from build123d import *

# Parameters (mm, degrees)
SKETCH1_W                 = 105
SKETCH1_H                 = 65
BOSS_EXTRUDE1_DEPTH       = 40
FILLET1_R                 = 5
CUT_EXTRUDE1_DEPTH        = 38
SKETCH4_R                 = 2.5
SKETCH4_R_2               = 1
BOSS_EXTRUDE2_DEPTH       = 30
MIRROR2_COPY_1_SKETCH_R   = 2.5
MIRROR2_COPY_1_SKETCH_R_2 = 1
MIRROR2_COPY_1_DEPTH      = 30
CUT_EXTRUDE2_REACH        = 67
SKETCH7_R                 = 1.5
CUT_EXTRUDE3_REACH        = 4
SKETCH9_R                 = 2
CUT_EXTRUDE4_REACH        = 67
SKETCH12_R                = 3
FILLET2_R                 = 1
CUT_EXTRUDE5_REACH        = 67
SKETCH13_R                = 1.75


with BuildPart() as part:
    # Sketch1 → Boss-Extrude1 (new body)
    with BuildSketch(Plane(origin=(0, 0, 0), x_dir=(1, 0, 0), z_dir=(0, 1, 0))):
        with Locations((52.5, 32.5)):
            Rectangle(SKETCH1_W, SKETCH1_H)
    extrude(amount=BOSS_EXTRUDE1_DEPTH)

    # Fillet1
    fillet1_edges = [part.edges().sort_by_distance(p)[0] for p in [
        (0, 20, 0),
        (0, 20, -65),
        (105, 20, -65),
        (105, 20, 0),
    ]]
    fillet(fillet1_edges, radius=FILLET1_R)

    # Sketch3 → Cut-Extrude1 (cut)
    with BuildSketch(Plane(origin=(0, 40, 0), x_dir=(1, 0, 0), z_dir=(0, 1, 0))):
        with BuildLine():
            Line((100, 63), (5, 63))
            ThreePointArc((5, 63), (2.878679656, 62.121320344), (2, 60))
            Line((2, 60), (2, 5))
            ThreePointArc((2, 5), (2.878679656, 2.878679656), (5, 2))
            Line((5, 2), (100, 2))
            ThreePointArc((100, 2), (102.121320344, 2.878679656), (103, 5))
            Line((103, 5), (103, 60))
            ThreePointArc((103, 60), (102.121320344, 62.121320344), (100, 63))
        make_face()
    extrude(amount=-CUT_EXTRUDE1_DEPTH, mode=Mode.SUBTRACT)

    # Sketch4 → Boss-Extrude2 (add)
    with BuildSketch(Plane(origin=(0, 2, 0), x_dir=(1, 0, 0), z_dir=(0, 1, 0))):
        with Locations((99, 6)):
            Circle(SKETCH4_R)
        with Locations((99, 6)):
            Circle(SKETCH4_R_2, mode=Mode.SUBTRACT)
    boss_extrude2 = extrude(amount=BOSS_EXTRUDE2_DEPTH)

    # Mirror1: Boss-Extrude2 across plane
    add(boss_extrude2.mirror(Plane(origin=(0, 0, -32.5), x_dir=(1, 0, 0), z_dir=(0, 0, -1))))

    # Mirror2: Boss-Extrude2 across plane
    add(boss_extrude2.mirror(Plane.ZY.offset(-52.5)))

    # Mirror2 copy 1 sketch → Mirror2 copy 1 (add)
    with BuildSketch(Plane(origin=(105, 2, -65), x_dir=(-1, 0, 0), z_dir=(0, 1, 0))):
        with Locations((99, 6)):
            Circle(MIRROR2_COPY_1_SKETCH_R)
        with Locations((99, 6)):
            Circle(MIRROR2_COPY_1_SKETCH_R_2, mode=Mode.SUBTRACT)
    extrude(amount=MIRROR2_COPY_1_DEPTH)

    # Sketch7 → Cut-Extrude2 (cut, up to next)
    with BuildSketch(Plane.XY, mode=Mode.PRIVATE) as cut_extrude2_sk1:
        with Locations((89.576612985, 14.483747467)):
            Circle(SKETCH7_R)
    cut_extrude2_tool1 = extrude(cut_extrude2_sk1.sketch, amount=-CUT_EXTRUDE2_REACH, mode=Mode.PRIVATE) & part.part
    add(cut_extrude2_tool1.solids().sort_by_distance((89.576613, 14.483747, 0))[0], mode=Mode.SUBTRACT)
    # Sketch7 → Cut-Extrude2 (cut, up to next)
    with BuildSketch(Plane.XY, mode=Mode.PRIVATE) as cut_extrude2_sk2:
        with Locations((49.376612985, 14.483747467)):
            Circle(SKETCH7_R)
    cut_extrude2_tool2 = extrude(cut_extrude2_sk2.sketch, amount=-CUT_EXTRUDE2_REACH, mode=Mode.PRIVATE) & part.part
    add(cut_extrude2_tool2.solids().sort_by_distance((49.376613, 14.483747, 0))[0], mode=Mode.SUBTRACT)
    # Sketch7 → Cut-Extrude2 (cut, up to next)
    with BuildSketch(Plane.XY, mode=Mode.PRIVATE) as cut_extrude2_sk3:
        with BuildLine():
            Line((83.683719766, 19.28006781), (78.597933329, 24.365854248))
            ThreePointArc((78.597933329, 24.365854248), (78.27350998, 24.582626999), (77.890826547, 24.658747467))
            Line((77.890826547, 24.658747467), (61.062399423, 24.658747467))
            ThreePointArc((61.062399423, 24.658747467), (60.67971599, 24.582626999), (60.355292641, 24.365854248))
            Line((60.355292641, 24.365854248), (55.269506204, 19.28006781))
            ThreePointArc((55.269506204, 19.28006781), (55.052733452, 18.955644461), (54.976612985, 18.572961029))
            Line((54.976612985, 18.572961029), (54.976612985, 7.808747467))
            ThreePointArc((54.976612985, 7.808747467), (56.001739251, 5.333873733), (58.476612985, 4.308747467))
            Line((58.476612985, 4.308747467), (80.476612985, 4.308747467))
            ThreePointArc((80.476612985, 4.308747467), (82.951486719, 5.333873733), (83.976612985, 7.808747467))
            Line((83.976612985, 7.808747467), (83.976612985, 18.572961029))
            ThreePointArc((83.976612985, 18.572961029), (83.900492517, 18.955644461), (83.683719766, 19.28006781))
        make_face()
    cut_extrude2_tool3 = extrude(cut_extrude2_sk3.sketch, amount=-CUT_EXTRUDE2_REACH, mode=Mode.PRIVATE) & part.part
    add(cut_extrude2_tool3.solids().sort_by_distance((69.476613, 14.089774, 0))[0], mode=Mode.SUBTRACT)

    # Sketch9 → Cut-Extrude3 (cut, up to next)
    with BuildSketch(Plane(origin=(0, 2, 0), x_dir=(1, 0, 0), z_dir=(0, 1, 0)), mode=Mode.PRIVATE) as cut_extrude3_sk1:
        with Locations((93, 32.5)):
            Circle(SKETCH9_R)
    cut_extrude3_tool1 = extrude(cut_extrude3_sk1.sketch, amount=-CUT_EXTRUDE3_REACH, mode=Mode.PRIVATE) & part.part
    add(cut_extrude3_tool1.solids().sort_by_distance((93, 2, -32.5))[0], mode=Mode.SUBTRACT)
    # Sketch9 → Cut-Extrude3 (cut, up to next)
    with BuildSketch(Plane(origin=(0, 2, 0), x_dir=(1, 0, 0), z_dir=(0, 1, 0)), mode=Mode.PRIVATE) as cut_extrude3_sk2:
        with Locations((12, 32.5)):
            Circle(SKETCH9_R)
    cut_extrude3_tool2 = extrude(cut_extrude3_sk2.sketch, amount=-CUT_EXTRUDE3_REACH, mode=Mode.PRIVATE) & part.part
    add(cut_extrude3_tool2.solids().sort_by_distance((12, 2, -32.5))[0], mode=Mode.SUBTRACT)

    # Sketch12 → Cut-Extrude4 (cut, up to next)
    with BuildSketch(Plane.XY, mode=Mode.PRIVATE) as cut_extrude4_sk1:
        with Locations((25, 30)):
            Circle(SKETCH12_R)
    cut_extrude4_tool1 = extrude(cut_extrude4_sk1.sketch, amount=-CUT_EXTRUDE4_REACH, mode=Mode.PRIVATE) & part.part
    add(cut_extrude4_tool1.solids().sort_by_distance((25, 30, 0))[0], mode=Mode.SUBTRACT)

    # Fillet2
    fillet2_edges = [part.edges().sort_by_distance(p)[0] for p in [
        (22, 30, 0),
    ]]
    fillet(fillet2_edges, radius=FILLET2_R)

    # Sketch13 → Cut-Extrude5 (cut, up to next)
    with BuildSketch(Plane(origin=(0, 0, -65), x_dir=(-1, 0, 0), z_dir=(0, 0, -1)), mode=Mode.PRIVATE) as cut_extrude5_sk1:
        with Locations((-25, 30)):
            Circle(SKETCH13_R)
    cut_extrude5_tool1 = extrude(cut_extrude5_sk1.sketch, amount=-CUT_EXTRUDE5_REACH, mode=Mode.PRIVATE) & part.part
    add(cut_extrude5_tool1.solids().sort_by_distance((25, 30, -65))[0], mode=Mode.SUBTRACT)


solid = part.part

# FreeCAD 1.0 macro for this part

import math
import FreeCAD as App
import Part
import Sketcher
from FreeCAD import Vector
Q = App.Units.Quantity


def edges_at(feature, points):
    """Names of the edges that pass closest to the given points."""
    edges = feature.Shape.Edges
    near = lambda p: min(range(len(edges)), key=lambda i: edges[i].distToShape(Part.Vertex(*p))[0])
    return sorted({f"Edge{near(p) + 1}" for p in points})


def add_polygon(sketch, points):
    """Adds a closed chain of lines whose ends are joined by coincident constraints."""
    first, n = sketch.GeometryCount, len(points)
    for a, b in zip(points, points[1:] + points[:1]):
        sketch.addGeometry(Part.LineSegment(App.Vector(*a, 0), App.Vector(*b, 0)), False)
    for i in range(n):
        sketch.addConstraint(Sketcher.Constraint("Coincident", first + i, 2, first + (i + 1) % n, 1))

doc = App.newDocument("Part")
body = doc.addObject("PartDesign::Body", "Body")

# Sketch on XZ plane
sketch1 = body.newObject("Sketcher::SketchObject", "Sketch")
sketch1.AttachmentSupport = (doc.getObject("XZ_Plane"), [""])
sketch1.MapMode = "FlatFace"
add_polygon(sketch1, [(0, -65), (0, 0), (105, 0), (105, -65)])  # lines 0-3
sketch1.addConstraint([
    Sketcher.Constraint("Vertical", 0),
    Sketcher.Constraint("Horizontal", 1),
    Sketcher.Constraint("Vertical", 2),
    Sketcher.Constraint("Horizontal", 3),
    Sketcher.Constraint("Coincident", 0, 2, -1, 1),
    Sketcher.Constraint("DistanceX", 1, 1, 1, 2, Q("105 mm")),
    Sketcher.Constraint("DistanceY", 0, 1, 0, 2, Q("65 mm")),
])
pad1 = body.newObject("PartDesign::Pad", "Pad")
pad1.Profile = sketch1
pad1.Length = 40
pad1.Reversed = True
doc.recompute()

fillet = body.newObject("PartDesign::Fillet", "Fillet")
fillet.Base = (pad1, edges_at(pad1, [
    (0, 20, 0),
    (0, 20, -65),
    (105, 20, -65),
    (105, 20, 0),
]))
fillet.Radius = 5

# Sketch on XZ plane
sketch2 = body.newObject("Sketcher::SketchObject", "Sketch001")
sketch2.AttachmentSupport = (doc.getObject("XZ_Plane"), [""])
sketch2.MapMode = "FlatFace"
sketch2.AttachmentOffset = App.Placement(Vector(0, 0, -40), App.Rotation())
sketch2.addGeometry([
    Part.LineSegment(Vector(100, -63, 0), Vector(5, -63, 0)),  # 0
    Part.ArcOfCircle(Part.Circle(Vector(5, -60, 0), Vector(0, 0, 1), 3), math.radians(180), math.radians(270)),  # 1
    Part.LineSegment(Vector(2, -60, 0), Vector(2, -5, 0)),  # 2
    Part.ArcOfCircle(Part.Circle(Vector(5, -5, 0), Vector(0, 0, 1), 3), math.radians(90), math.radians(180)),  # 3
    Part.LineSegment(Vector(5, -2, 0), Vector(100, -2, 0)),  # 4
    Part.ArcOfCircle(Part.Circle(Vector(100, -5, 0), Vector(0, 0, 1), 3), math.radians(0), math.radians(90)),  # 5
    Part.LineSegment(Vector(103, -5, 0), Vector(103, -60, 0)),  # 6
    Part.ArcOfCircle(Part.Circle(Vector(100, -60, 0), Vector(0, 0, 1), 3), math.radians(-90), math.radians(0)),  # 7
], False)
sketch2.addConstraint([
    Sketcher.Constraint("Tangent", 0, 2, 1, 2),
    Sketcher.Constraint("Tangent", 1, 1, 2, 1),
    Sketcher.Constraint("Tangent", 2, 2, 3, 2),
    Sketcher.Constraint("Tangent", 3, 1, 4, 1),
    Sketcher.Constraint("Tangent", 4, 2, 5, 2),
    Sketcher.Constraint("Tangent", 5, 1, 6, 1),
    Sketcher.Constraint("Tangent", 6, 2, 7, 2),
    Sketcher.Constraint("Tangent", 7, 1, 0, 1),
    Sketcher.Constraint("Horizontal", 0),
    Sketcher.Constraint("Vertical", 2),
    Sketcher.Constraint("Horizontal", 4),
    Sketcher.Constraint("Vertical", 6),
    Sketcher.Constraint("Equal", 1, 3),
    Sketcher.Constraint("Equal", 3, 5),
    Sketcher.Constraint("Equal", 5, 7),
    Sketcher.Constraint("Radius", 1, Q("3 mm")),
    Sketcher.Constraint("DistanceX", 0, 2, 0, 1, Q("95 mm")),
    Sketcher.Constraint("DistanceY", 2, 1, 2, 2, Q("55 mm")),
    Sketcher.Constraint("DistanceX", -1, 1, 1, 3, Q("5 mm")),
    Sketcher.Constraint("DistanceY", 1, 3, -1, 1, Q("60 mm")),
])
pocket1 = body.newObject("PartDesign::Pocket", "Pocket")
pocket1.Profile = sketch2
pocket1.Length = 38
pocket1.Reversed = True

# Sketch on XZ plane
sketch3 = body.newObject("Sketcher::SketchObject", "Sketch002")
sketch3.AttachmentSupport = (doc.getObject("XZ_Plane"), [""])
sketch3.MapMode = "FlatFace"
sketch3.AttachmentOffset = App.Placement(Vector(0, 0, -2), App.Rotation())
sketch3.addGeometry([
    Part.Circle(Vector(99, -6, 0), Vector(0, 0, 1), 2.5),
    Part.Circle(Vector(99, -6, 0), Vector(0, 0, 1), 1),
], False)
sketch3.addConstraint([
    Sketcher.Constraint("Coincident", 1, 3, 0, 3),
    Sketcher.Constraint("Diameter", 0, Q("5 mm")),
    Sketcher.Constraint("Diameter", 1, Q("2 mm")),
    Sketcher.Constraint("DistanceX", -1, 1, 0, 3, Q("99 mm")),
    Sketcher.Constraint("DistanceY", 0, 3, -1, 1, Q("6 mm")),
])
pad2 = body.newObject("PartDesign::Pad", "Pad001")
pad2.Profile = sketch3
pad2.Length = 30
pad2.Reversed = True
doc.recompute()

datumplane = body.newObject("PartDesign::Plane", "DatumPlane")
datumplane.AttachmentSupport = (doc.getObject("XY_Plane"), [""])
datumplane.MapMode = "FlatFace"
datumplane.AttachmentOffset = App.Placement(Vector(0, 0, -32.5), App.Rotation())
mirrored = body.newObject("PartDesign::Mirrored", "Mirrored")
mirrored.Originals = [pad2]
mirrored.MirrorPlane = (datumplane, [""])
body.Tip = mirrored
doc.recompute()

datumplane2 = body.newObject("PartDesign::Plane", "DatumPlane001")
datumplane2.AttachmentSupport = (doc.getObject("YZ_Plane"), [""])
datumplane2.MapMode = "FlatFace"
datumplane2.AttachmentOffset = App.Placement(Vector(0, 0, 52.5), App.Rotation())
mirrored2 = body.newObject("PartDesign::Mirrored", "Mirrored001")
mirrored2.Originals = [pad2]
mirrored2.MirrorPlane = (datumplane2, [""])
body.Tip = mirrored2

# Sketch on XZ plane
sketch4 = body.newObject("Sketcher::SketchObject", "Sketch003")
sketch4.AttachmentSupport = (doc.getObject("XZ_Plane"), [""])
sketch4.MapMode = "FlatFace"
sketch4.AttachmentOffset = App.Placement(Vector(0, 0, -2), App.Rotation())
sketch4.addGeometry([
    Part.Circle(Vector(6, -59, 0), Vector(0, 0, 1), 2.5),
    Part.Circle(Vector(6, -59, 0), Vector(0, 0, 1), 1),
], False)
sketch4.addConstraint([
    Sketcher.Constraint("Coincident", 1, 3, 0, 3),
    Sketcher.Constraint("Diameter", 0, Q("5 mm")),
    Sketcher.Constraint("Diameter", 1, Q("2 mm")),
    Sketcher.Constraint("DistanceX", -1, 1, 0, 3, Q("6 mm")),
    Sketcher.Constraint("DistanceY", 0, 3, -1, 1, Q("59 mm")),
])
pad3 = body.newObject("PartDesign::Pad", "Pad002")
pad3.Profile = sketch4
pad3.Length = 30
pad3.Reversed = True

# Sketch on XY plane
sketch5 = body.newObject("Sketcher::SketchObject", "Sketch004")
sketch5.AttachmentSupport = (doc.getObject("XY_Plane"), [""])
sketch5.MapMode = "FlatFace"
sketch5.addGeometry(Part.Circle(Vector(89.576613, 14.483747, 0), Vector(0, 0, 1), 1.5), False)
sketch5.addConstraint([
    Sketcher.Constraint("Diameter", 0, Q("3 mm")),
    Sketcher.Constraint("DistanceX", -1, 1, 0, 3, Q("89.576613 mm")),
    Sketcher.Constraint("DistanceY", -1, 1, 0, 3, Q("14.483747 mm")),
])
pocket2 = body.newObject("PartDesign::Pocket", "Pocket001")
pocket2.Profile = sketch5
pocket2.Type = "UpToFirst"

# Sketch on XY plane
sketch6 = body.newObject("Sketcher::SketchObject", "Sketch005")
sketch6.AttachmentSupport = (doc.getObject("XY_Plane"), [""])
sketch6.MapMode = "FlatFace"
sketch6.addGeometry(Part.Circle(Vector(49.376613, 14.483747, 0), Vector(0, 0, 1), 1.5), False)
sketch6.addConstraint([
    Sketcher.Constraint("Diameter", 0, Q("3 mm")),
    Sketcher.Constraint("DistanceX", -1, 1, 0, 3, Q("49.376613 mm")),
    Sketcher.Constraint("DistanceY", -1, 1, 0, 3, Q("14.483747 mm")),
])
pocket3 = body.newObject("PartDesign::Pocket", "Pocket002")
pocket3.Profile = sketch6
pocket3.Type = "UpToFirst"

# Sketch on XY plane
sketch7 = body.newObject("Sketcher::SketchObject", "Sketch006")
sketch7.AttachmentSupport = (doc.getObject("XY_Plane"), [""])
sketch7.MapMode = "FlatFace"
sketch7.addGeometry([
    Part.LineSegment(Vector(83.68372, 19.280068, 0), Vector(78.597933, 24.365854, 0)),  # 0
    Part.ArcOfCircle(Part.Circle(Vector(77.890827, 23.658747, 0), Vector(0, 0, 1), 1), math.radians(45), math.radians(90)),  # 1
    Part.LineSegment(Vector(77.890827, 24.658747, 0), Vector(61.062399, 24.658747, 0)),  # 2
    Part.ArcOfCircle(Part.Circle(Vector(61.062399, 23.658747, 0), Vector(0, 0, 1), 1), math.radians(90), math.radians(135)),  # 3
    Part.LineSegment(Vector(60.355293, 24.365854, 0), Vector(55.269506, 19.280068, 0)),  # 4
    Part.ArcOfCircle(Part.Circle(Vector(55.976613, 18.572961, 0), Vector(0, 0, 1), 1), math.radians(135), math.radians(180)),  # 5
    Part.LineSegment(Vector(54.976613, 18.572961, 0), Vector(54.976613, 7.808747, 0)),  # 6
    Part.ArcOfCircle(Part.Circle(Vector(58.476613, 7.808747, 0), Vector(0, 0, 1), 3.5), math.radians(-180), math.radians(-90)),  # 7
    Part.LineSegment(Vector(58.476613, 4.308747, 0), Vector(80.476613, 4.308747, 0)),  # 8
    Part.ArcOfCircle(Part.Circle(Vector(80.476613, 7.808747, 0), Vector(0, 0, 1), 3.5), math.radians(-90), math.radians(0)),  # 9
    Part.LineSegment(Vector(83.976613, 7.808747, 0), Vector(83.976613, 18.572961, 0)),  # 10
    Part.ArcOfCircle(Part.Circle(Vector(82.976613, 18.572961, 0), Vector(0, 0, 1), 1), math.radians(0), math.radians(45)),  # 11
], False)
sketch7.addConstraint([
    Sketcher.Constraint("Tangent", 0, 2, 1, 1),
    Sketcher.Constraint("Tangent", 1, 2, 2, 1),
    Sketcher.Constraint("Tangent", 2, 2, 3, 1),
    Sketcher.Constraint("Tangent", 3, 2, 4, 1),
    Sketcher.Constraint("Tangent", 4, 2, 5, 1),
    Sketcher.Constraint("Tangent", 5, 2, 6, 1),
    Sketcher.Constraint("Tangent", 6, 2, 7, 1),
    Sketcher.Constraint("Tangent", 7, 2, 8, 1),
    Sketcher.Constraint("Tangent", 8, 2, 9, 1),
    Sketcher.Constraint("Tangent", 9, 2, 10, 1),
    Sketcher.Constraint("Tangent", 10, 2, 11, 1),
    Sketcher.Constraint("Tangent", 11, 2, 0, 1),
    Sketcher.Constraint("Horizontal", 2),
    Sketcher.Constraint("Vertical", 6),
    Sketcher.Constraint("Horizontal", 8),
    Sketcher.Constraint("Vertical", 10),
    Sketcher.Constraint("Equal", 1, 3),
    Sketcher.Constraint("Equal", 3, 5),
    Sketcher.Constraint("Equal", 7, 9),
    Sketcher.Constraint("Equal", 5, 11),
    Sketcher.Constraint("Perpendicular", 0, 4),
    Sketcher.Constraint("Horizontal", 5, 3, 11, 3),
    Sketcher.Constraint("Horizontal", 0, 2, 3, 2),
    Sketcher.Constraint("Radius", 1, Q("1 mm")),
    Sketcher.Constraint("Radius", 7, Q("3.5 mm")),
    Sketcher.Constraint("DistanceX", 8, 1, 8, 2, Q("22 mm")),
    Sketcher.Constraint("DistanceY", 7, 3, 3, 3, Q("15.85 mm")),
    Sketcher.Constraint("DistanceX", -1, 1, 3, 3, Q("61.062399 mm")),
    Sketcher.Constraint("Distance", 0, Q("7.192388 mm")),
    Sketcher.Constraint("DistanceY", -1, 1, 5, 3, Q("18.572961 mm")),
])
pocket4 = body.newObject("PartDesign::Pocket", "Pocket003")
pocket4.Profile = sketch7
pocket4.Type = "UpToFirst"

# Sketch on XZ plane
sketch8 = body.newObject("Sketcher::SketchObject", "Sketch007")
sketch8.AttachmentSupport = (doc.getObject("XZ_Plane"), [""])
sketch8.MapMode = "FlatFace"
sketch8.AttachmentOffset = App.Placement(Vector(0, 0, -2), App.Rotation())
sketch8.addGeometry(Part.Circle(Vector(93, -32.5, 0), Vector(0, 0, 1), 2), False)
sketch8.addConstraint([
    Sketcher.Constraint("Diameter", 0, Q("4 mm")),
    Sketcher.Constraint("DistanceX", -1, 1, 0, 3, Q("93 mm")),
    Sketcher.Constraint("DistanceY", 0, 3, -1, 1, Q("32.5 mm")),
])
pocket5 = body.newObject("PartDesign::Pocket", "Pocket004")
pocket5.Profile = sketch8
pocket5.Type = "UpToFirst"
pocket5.Reversed = True

# Sketch on XZ plane
sketch9 = body.newObject("Sketcher::SketchObject", "Sketch008")
sketch9.AttachmentSupport = (doc.getObject("XZ_Plane"), [""])
sketch9.MapMode = "FlatFace"
sketch9.AttachmentOffset = App.Placement(Vector(0, 0, -2), App.Rotation())
sketch9.addGeometry(Part.Circle(Vector(12, -32.5, 0), Vector(0, 0, 1), 2), False)
sketch9.addConstraint([
    Sketcher.Constraint("Diameter", 0, Q("4 mm")),
    Sketcher.Constraint("DistanceX", -1, 1, 0, 3, Q("12 mm")),
    Sketcher.Constraint("DistanceY", 0, 3, -1, 1, Q("32.5 mm")),
])
pocket6 = body.newObject("PartDesign::Pocket", "Pocket005")
pocket6.Profile = sketch9
pocket6.Type = "UpToFirst"
pocket6.Reversed = True

# Sketch on XY plane
sketch10 = body.newObject("Sketcher::SketchObject", "Sketch009")
sketch10.AttachmentSupport = (doc.getObject("XY_Plane"), [""])
sketch10.MapMode = "FlatFace"
sketch10.addGeometry(Part.Circle(Vector(25, 30, 0), Vector(0, 0, 1), 3), False)
sketch10.addConstraint([
    Sketcher.Constraint("Diameter", 0, Q("6 mm")),
    Sketcher.Constraint("DistanceX", -1, 1, 0, 3, Q("25 mm")),
    Sketcher.Constraint("DistanceY", -1, 1, 0, 3, Q("30 mm")),
])
pocket7 = body.newObject("PartDesign::Pocket", "Pocket006")
pocket7.Profile = sketch10
pocket7.Type = "UpToFirst"
doc.recompute()

fillet2 = body.newObject("PartDesign::Fillet", "Fillet001")
fillet2.Base = (pocket7, edges_at(pocket7, [(22, 30, 0)]))
fillet2.Radius = 1

# Sketch on XY plane
sketch11 = body.newObject("Sketcher::SketchObject", "Sketch010")
sketch11.AttachmentSupport = (doc.getObject("XY_Plane"), [""])
sketch11.MapMode = "FlatFace"
sketch11.AttachmentOffset = App.Placement(Vector(0, 0, -65), App.Rotation())
sketch11.addGeometry(Part.Circle(Vector(25, 30, 0), Vector(0, 0, 1), 1.75), False)
sketch11.addConstraint([
    Sketcher.Constraint("Diameter", 0, Q("3.5 mm")),
    Sketcher.Constraint("DistanceX", -1, 1, 0, 3, Q("25 mm")),
    Sketcher.Constraint("DistanceY", -1, 1, 0, 3, Q("30 mm")),
])
pocket8 = body.newObject("PartDesign::Pocket", "Pocket007")
pocket8.Profile = sketch11
pocket8.Type = "UpToFirst"
pocket8.Reversed = True

doc.recompute()
